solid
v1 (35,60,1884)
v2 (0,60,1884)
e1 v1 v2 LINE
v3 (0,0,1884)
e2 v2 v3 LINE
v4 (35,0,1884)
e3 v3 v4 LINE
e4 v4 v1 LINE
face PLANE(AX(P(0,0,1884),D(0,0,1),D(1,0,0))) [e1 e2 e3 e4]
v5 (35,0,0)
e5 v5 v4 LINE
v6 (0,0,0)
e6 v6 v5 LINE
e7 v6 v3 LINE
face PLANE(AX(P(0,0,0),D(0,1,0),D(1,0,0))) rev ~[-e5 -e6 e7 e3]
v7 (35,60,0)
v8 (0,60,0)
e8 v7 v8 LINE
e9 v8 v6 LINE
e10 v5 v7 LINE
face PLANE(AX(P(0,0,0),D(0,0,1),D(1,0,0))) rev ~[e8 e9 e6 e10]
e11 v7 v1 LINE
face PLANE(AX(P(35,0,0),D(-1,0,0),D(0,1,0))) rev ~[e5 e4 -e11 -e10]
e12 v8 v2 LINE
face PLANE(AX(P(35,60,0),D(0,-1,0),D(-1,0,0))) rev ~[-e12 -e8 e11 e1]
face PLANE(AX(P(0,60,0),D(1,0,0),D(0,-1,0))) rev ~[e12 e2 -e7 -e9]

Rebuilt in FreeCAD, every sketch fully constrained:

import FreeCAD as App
import Part
import Sketcher

V = App.Vector

doc = App.newDocument("Part")
body = doc.addObject("PartDesign::Body", "Body")

# Sketch on XY plane
sketch1 = body.newObject("Sketcher::SketchObject", "Sketch")
sketch1.AttachmentSupport = (doc.getObject("XY_Plane"), [""])
sketch1.MapMode = "FlatFace"
sketch1.addGeometry([
    Part.LineSegment(V(0, 60, 0), V(0, 0, 0)),
    Part.LineSegment(V(0, 0, 0), V(35, 0, 0)),
    Part.LineSegment(V(35, 0, 0), V(35, 60, 0)),
    Part.LineSegment(V(35, 60, 0), V(0, 60, 0)),
], False)
sketch1.addConstraint([
    Sketcher.Constraint("Coincident", 0, 2, 1, 1),
    Sketcher.Constraint("Coincident", 1, 2, 2, 1),
    Sketcher.Constraint("Coincident", 2, 2, 3, 1),
    Sketcher.Constraint("Coincident", 3, 2, 0, 1),
    Sketcher.Constraint("Vertical", 0),
    Sketcher.Constraint("Horizontal", 1),
    Sketcher.Constraint("Vertical", 2),
    Sketcher.Constraint("Horizontal", 3),
    Sketcher.Constraint("Coincident", 0, 2, -1, 1),
    Sketcher.Constraint("DistanceX", 1, 1, 1, 2, 35.0),
    Sketcher.Constraint("DistanceY", 0, 2, 0, 1, 60.0),
])
pad1 = body.newObject("PartDesign::Pad", "Pad")
pad1.Profile = sketch1
pad1.Length = 1884

doc.recompute()
